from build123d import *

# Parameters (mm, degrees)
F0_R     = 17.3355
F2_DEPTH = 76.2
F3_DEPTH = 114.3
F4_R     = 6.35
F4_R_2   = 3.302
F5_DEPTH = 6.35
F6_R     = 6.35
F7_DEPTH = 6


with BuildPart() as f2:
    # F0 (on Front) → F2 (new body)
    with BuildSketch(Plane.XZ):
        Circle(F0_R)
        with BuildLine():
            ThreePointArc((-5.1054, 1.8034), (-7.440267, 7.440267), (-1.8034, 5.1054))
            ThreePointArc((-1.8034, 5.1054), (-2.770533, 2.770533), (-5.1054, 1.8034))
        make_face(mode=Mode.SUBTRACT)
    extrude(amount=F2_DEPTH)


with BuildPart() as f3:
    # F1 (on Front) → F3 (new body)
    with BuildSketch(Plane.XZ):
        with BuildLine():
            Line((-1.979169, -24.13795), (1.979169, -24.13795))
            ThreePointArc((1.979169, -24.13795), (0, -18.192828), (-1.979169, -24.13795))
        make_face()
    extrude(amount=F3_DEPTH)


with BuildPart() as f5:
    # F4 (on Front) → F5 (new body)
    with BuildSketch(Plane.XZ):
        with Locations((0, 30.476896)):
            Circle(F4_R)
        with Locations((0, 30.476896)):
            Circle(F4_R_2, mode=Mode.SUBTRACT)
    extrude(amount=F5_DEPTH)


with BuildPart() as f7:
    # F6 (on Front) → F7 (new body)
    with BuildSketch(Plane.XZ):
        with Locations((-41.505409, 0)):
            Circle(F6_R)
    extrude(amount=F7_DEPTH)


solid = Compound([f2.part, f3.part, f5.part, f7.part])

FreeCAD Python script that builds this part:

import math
import FreeCAD as App
import Part
import Sketcher
Q = App.Units.Quantity

doc = App.newDocument("Part")
body = doc.addObject("PartDesign::Body", "Body")

# Sketch on XZ plane
sketch1 = body.newObject("Sketcher::SketchObject", "Sketch")
sketch1.AttachmentSupport = (doc.getObject("XZ_Plane"), [""])
sketch1.MapMode = "FlatFace"
sketch1.addGeometry(Part.Circle(App.Vector(0, 0, 0), App.Vector(0, 0, 1), 17.3), False)
sketch1.addGeometry(Part.ArcOfCircle(Part.Circle(App.Vector(-5.1, 5.1, 0), App.Vector(0, 0, 1), 3.3), math.radians(-90), math.radians(0)), False)
sketch1.addGeometry(Part.ArcOfCircle(Part.Circle(App.Vector(-5.1, 5.1, 0), App.Vector(0, 0, 1), 3.3), math.radians(0), math.radians(270)), False)
sketch1.addConstraint(Sketcher.Constraint("Tangent", 1, 1, 2, 2))
sketch1.addConstraint(Sketcher.Constraint("Coincident", 2, 1, 1, 2))
sketch1.addConstraint(Sketcher.Constraint("Coincident", 0, 3, -1, 1))
sketch1.addConstraint(Sketcher.Constraint("Horizontal", 1, 3, 2, 1))
sketch1.addConstraint(Sketcher.Constraint("Vertical", 2, 3, 1, 1))
sketch1.addConstraint(Sketcher.Constraint("Radius", 1, Q("0.1299999 in")))
sketch1.addConstraint(Sketcher.Constraint("Diameter", 0, Q("1.365 in")))
sketch1.addConstraint(Sketcher.Constraint("DistanceX", 1, 3, -1, 1, Q("0.2009999 in")))
sketch1.addConstraint(Sketcher.Constraint("DistanceY", -1, 1, 1, 3, Q("0.2009999 in")))
pad1 = body.newObject("PartDesign::Pad", "Pad")
pad1.Profile = sketch1
pad1.Length = Q("3 in")
body2 = doc.addObject("PartDesign::Body", "Body001")

# Sketch on XZ plane
sketch2 = body2.newObject("Sketcher::SketchObject", "Sketch001")
sketch2.AttachmentSupport = (doc.getObject("XZ_Plane001"), [""])
sketch2.MapMode = "FlatFace"
sketch2.addGeometry(Part.LineSegment(App.Vector(-2, -24.1, 0), App.Vector(2, -24.1, 0)), False)
sketch2.addGeometry(Part.ArcOfCircle(Part.Circle(App.Vector(0, -21.5, 0), App.Vector(0, 0, 1), 3.3), math.radians(-53), math.radians(233)), False)
sketch2.addConstraint(Sketcher.Constraint("Coincident", 0, 1, 1, 2))
sketch2.addConstraint(Sketcher.Constraint("Coincident", 1, 1, 0, 2))
sketch2.addConstraint(Sketcher.Constraint("Horizontal", 0))
sketch2.addConstraint(Sketcher.Constraint("PointOnObject", 1, 3, -2))
sketch2.addConstraint(Sketcher.Constraint("Radius", 1, Q("0.13 in")))
sketch2.addConstraint(Sketcher.Constraint("DistanceX", 0, 1, 0, 2, Q("3.958338 mm")))
sketch2.addConstraint(Sketcher.Constraint("DistanceY", 0, 1, -1, 1, Q("24.13795 mm")))
pad2 = body2.newObject("PartDesign::Pad", "Pad001")
pad2.Profile = sketch2
pad2.Length = Q("4.5 in")
body3 = doc.addObject("PartDesign::Body", "Body002")

# Sketch on XZ plane
sketch3 = body3.newObject("Sketcher::SketchObject", "Sketch002")
sketch3.AttachmentSupport = (doc.getObject("XZ_Plane002"), [""])
sketch3.MapMode = "FlatFace"
sketch3.addGeometry(Part.Circle(App.Vector(0, 30.5, 0), App.Vector(0, 0, 1), 6.3), False)
sketch3.addGeometry(Part.Circle(App.Vector(0, 30.5, 0), App.Vector(0, 0, 1), 3.3), False)
sketch3.addConstraint(Sketcher.Constraint("Coincident", 1, 3, 0, 3))
sketch3.addConstraint(Sketcher.Constraint("PointOnObject", 0, 3, -2))
sketch3.addConstraint(Sketcher.Constraint("Diameter", 0, Q("0.5 in")))
sketch3.addConstraint(Sketcher.Constraint("Diameter", 1, Q("0.26 in")))
sketch3.addConstraint(Sketcher.Constraint("DistanceY", -1, 1, 0, 3, Q("30.476896 mm")))
pad3 = body3.newObject("PartDesign::Pad", "Pad002")
pad3.Profile = sketch3
pad3.Length = Q("0.25 in")
body4 = doc.addObject("PartDesign::Body", "Body003")

# Sketch on XZ plane
sketch4 = body4.newObject("Sketcher::SketchObject", "Sketch003")
sketch4.AttachmentSupport = (doc.getObject("XZ_Plane003"), [""])
sketch4.MapMode = "FlatFace"
sketch4.addGeometry(Part.Circle(App.Vector(-42, 0, 0), App.Vector(0, 0, 1), 6), False)
sketch4.addConstraint(Sketcher.Constraint("PointOnObject", 0, 3, -1))
sketch4.addConstraint(Sketcher.Constraint("Diameter", 0, Q("0.5 in")))
sketch4.addConstraint(Sketcher.Constraint("DistanceX", 0, 3, -1, 1, Q("41.505409 mm")))
pad4 = body4.newObject("PartDesign::Pad", "Pad003")
pad4.Profile = sketch4
pad4.Length = 6

doc.recompute()
